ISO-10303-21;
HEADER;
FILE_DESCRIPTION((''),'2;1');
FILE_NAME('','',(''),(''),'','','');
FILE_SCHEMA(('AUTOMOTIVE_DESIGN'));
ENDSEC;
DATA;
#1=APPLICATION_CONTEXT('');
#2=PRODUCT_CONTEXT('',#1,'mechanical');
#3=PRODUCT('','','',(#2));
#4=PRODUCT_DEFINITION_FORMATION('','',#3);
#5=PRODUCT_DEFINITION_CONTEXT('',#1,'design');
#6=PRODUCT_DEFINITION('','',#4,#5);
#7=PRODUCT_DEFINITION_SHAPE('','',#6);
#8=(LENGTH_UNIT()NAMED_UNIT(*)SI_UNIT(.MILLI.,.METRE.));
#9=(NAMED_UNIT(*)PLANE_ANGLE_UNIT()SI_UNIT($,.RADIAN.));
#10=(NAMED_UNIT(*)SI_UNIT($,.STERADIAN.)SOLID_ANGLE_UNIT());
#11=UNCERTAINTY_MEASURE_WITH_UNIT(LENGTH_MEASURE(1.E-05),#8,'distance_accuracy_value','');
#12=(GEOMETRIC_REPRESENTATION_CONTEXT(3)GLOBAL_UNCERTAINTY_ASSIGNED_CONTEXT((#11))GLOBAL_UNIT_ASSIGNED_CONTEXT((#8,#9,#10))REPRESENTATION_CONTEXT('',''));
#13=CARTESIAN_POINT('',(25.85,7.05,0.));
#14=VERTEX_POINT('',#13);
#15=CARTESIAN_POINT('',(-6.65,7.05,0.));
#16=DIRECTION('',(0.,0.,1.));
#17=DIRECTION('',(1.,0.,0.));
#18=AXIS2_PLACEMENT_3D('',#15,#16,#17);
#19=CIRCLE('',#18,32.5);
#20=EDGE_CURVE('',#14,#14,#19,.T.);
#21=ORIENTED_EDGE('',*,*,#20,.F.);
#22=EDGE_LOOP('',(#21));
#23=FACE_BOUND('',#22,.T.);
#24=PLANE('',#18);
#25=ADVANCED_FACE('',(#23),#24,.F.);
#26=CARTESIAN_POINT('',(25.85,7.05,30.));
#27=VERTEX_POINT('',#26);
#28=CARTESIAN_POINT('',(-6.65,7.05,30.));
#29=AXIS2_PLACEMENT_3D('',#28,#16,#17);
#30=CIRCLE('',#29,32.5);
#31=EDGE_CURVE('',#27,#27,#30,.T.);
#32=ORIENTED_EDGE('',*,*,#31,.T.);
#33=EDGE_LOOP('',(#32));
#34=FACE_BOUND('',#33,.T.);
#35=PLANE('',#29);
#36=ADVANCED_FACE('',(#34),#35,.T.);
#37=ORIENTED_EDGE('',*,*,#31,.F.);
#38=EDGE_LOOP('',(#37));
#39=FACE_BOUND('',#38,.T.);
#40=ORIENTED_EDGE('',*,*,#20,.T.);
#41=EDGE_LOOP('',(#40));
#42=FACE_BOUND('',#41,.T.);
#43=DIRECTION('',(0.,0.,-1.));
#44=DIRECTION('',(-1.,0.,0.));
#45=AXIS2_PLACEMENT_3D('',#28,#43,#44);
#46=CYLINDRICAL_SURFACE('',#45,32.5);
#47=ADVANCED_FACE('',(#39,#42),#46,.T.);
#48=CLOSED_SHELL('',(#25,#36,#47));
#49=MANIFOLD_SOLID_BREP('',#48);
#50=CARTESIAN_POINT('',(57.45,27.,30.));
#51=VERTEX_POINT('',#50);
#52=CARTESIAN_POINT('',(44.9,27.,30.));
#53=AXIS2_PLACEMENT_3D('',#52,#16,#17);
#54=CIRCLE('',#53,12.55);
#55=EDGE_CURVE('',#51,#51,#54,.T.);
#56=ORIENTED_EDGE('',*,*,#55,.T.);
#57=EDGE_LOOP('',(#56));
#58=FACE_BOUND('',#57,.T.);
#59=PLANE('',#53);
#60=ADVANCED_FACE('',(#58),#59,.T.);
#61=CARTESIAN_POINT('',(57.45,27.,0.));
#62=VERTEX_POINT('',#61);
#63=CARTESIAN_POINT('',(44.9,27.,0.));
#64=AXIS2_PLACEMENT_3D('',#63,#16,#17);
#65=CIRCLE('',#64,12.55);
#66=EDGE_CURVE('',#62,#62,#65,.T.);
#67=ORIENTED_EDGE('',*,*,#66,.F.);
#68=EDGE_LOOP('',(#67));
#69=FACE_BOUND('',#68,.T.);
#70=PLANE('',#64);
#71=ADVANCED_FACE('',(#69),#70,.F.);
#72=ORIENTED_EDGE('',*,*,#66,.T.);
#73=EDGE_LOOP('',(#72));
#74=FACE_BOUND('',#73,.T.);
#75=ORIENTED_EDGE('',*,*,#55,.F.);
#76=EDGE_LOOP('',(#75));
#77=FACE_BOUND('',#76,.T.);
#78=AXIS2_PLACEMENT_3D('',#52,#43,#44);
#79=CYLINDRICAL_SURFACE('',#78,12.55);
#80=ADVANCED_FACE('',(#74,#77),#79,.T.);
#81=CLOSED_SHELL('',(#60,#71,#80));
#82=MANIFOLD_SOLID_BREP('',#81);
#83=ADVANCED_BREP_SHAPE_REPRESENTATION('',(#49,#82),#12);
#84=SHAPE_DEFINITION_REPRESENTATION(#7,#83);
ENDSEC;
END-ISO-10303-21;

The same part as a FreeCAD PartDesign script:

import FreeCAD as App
import Part
import Sketcher

V = App.Vector

doc = App.newDocument("Part")
body = doc.addObject("PartDesign::Body", "Body")

# Sketch on XY plane
sketch1 = body.newObject("Sketcher::SketchObject", "Sketch")
sketch1.AttachmentSupport = (doc.getObject("XY_Plane"), [""])
sketch1.MapMode = "FlatFace"
sketch1.addGeometry(Part.Circle(V(45, 27, 0), V(0, 0, 1), 13), False)
sketch1.addConstraint([
    Sketcher.Constraint("Diameter", 0, 25.1),
    Sketcher.Constraint("DistanceY", -1, 1, 0, 3, 27.0),
    Sketcher.Constraint("DistanceX", -1, 1, 0, 3, 44.9),
])
pad1 = body.newObject("PartDesign::Pad", "Pad")
pad1.Profile = sketch1
pad1.Length = 30
body2 = doc.addObject("PartDesign::Body", "Body001")

# Sketch on XY plane
sketch2 = body2.newObject("Sketcher::SketchObject", "Sketch001")
sketch2.AttachmentSupport = (doc.getObject("XY_Plane001"), [""])
sketch2.MapMode = "FlatFace"
sketch2.addGeometry(Part.Circle(V(-7, 7, 0), V(0, 0, 1), 32), False)
sketch2.addConstraint([
    Sketcher.Constraint("Diameter", 0, 65.0),
    Sketcher.Constraint("DistanceX", 0, 3, -1, 1, 6.65),
    Sketcher.Constraint("DistanceY", -1, 1, 0, 3, 7.05),
])
pad2 = body2.newObject("PartDesign::Pad", "Pad001")
pad2.Profile = sketch2
pad2.Length = 30

doc.recompute()
